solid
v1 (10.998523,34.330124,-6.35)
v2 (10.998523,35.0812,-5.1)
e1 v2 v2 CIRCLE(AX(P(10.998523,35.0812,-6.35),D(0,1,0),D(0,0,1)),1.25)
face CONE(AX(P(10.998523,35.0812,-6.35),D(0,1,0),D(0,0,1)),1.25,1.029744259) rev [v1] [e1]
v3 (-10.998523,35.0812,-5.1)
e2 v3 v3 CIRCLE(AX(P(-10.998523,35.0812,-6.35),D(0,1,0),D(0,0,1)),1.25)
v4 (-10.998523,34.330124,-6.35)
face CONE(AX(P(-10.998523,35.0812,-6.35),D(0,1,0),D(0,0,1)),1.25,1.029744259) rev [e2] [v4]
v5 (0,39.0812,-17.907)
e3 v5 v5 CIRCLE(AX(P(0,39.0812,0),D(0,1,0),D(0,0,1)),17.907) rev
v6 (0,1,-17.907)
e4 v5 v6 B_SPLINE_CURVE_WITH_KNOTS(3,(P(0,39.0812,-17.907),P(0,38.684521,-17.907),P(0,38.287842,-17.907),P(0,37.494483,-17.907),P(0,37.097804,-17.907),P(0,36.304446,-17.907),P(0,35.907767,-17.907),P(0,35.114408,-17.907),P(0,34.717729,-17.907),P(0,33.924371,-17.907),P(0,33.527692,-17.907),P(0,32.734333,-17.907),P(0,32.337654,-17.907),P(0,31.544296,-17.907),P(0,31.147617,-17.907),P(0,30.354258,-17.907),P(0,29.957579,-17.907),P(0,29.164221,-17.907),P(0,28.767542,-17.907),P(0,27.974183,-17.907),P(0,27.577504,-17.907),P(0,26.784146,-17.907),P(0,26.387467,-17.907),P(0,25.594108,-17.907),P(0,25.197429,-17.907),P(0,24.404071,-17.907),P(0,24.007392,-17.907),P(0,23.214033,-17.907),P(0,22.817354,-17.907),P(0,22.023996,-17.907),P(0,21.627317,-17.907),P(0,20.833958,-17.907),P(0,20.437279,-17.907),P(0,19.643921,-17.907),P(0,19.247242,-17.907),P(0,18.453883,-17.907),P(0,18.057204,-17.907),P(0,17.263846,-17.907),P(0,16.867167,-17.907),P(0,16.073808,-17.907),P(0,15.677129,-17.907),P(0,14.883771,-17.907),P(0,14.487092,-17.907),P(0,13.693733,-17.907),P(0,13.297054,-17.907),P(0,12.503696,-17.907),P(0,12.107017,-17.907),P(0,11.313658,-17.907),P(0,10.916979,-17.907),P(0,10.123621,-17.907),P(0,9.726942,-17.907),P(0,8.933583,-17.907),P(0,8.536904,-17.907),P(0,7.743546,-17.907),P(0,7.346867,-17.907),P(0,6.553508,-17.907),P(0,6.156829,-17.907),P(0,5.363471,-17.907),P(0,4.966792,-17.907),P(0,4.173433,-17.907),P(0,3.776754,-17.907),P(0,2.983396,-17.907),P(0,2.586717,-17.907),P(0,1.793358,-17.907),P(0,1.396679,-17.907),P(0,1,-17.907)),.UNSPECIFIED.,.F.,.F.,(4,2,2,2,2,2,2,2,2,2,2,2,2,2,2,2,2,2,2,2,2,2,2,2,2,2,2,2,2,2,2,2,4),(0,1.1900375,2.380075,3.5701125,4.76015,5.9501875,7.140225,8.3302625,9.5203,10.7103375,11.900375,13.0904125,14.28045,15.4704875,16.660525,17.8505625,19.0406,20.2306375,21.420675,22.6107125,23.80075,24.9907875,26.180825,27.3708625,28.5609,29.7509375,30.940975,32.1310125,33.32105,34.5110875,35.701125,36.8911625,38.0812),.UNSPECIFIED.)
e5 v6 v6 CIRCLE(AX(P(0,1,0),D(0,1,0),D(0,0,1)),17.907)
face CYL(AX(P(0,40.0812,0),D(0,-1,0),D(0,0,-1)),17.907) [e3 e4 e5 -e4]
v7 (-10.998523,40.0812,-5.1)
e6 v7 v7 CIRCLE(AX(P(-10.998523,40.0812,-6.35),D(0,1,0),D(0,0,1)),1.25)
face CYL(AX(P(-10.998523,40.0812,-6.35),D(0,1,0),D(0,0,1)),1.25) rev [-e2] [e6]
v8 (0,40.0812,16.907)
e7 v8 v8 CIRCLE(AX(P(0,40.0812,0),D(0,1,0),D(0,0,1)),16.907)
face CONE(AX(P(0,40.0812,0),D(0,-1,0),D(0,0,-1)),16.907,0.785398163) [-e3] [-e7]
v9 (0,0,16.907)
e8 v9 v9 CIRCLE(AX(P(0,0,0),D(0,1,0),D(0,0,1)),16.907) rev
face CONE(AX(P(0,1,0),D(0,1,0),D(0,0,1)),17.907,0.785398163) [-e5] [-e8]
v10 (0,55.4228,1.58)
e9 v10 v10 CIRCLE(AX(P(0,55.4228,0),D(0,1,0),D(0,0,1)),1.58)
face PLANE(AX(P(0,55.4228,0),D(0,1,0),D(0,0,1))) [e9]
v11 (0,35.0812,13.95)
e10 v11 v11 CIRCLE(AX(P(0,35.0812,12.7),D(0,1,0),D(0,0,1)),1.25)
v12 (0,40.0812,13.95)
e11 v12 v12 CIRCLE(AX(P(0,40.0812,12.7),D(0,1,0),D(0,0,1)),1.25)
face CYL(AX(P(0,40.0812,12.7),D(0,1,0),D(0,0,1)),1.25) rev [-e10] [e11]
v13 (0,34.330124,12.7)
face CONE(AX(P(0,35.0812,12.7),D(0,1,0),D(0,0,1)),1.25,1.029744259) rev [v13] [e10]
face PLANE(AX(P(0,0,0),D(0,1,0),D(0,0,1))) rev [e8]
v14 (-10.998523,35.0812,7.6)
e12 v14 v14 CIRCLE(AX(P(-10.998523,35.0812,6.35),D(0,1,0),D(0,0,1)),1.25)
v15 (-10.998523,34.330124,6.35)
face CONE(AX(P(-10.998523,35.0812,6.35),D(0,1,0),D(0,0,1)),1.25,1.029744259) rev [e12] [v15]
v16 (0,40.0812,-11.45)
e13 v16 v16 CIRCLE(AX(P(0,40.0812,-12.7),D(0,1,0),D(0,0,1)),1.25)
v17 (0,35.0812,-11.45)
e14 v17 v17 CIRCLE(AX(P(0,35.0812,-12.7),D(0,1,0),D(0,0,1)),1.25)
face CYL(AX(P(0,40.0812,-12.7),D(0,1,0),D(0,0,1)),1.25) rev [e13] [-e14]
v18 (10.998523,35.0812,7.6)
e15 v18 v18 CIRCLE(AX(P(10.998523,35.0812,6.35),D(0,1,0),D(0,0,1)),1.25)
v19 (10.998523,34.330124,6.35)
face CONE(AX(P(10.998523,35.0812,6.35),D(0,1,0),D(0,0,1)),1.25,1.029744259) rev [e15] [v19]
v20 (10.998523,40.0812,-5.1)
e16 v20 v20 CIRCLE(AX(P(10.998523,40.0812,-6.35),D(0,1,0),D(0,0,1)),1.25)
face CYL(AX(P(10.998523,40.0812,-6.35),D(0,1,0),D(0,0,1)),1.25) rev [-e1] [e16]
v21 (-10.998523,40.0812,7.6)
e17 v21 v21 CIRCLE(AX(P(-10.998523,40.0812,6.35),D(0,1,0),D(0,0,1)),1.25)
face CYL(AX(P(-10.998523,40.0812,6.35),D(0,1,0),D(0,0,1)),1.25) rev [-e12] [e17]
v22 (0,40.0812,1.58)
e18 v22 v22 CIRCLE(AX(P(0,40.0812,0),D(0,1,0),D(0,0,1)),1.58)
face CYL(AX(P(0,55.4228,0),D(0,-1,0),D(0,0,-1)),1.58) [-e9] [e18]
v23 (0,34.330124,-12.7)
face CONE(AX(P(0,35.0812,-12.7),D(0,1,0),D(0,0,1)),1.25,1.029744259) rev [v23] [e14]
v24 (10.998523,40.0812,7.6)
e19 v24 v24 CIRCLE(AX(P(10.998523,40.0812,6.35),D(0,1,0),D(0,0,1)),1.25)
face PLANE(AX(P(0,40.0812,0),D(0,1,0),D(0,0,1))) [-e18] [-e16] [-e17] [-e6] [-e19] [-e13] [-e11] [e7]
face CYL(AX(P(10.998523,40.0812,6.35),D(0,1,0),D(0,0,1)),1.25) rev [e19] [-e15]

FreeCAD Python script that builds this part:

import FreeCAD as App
import Part
import Sketcher
from FreeCAD import Vector


def edges_at(feature, points):
    """Names of the edges that pass closest to the given points."""
    edges = feature.Shape.Edges
    near = lambda p: min(range(len(edges)), key=lambda i: edges[i].distToShape(Part.Vertex(*p))[0])
    return sorted({f"Edge{near(p) + 1}" for p in points})

doc = App.newDocument("Part")
body = doc.addObject("PartDesign::Body", "Body")

# Sketch on XZ plane
sketch1 = body.newObject("Sketcher::SketchObject", "Sketch")
sketch1.AttachmentSupport = (doc.getObject("XZ_Plane"), [""])
sketch1.MapMode = "FlatFace"
sketch1.addGeometry(Part.Circle(Vector(0, 0, 0), Vector(0, 0, 1), 18), False)
sketch1.addConstraint([
    Sketcher.Constraint("Coincident", 0, 3, -1, 1),
    Sketcher.Constraint("Diameter", 0, 35.814),
])
pad1 = body.newObject("PartDesign::Pad", "Pad")
pad1.Profile = sketch1
pad1.Length = 40.0812
pad1.Reversed = True

# Sketch on XZ plane
sketch2 = body.newObject("Sketcher::SketchObject", "Sketch001")
sketch2.AttachmentSupport = (doc.getObject("XZ_Plane"), [""])
sketch2.MapMode = "FlatFace"
sketch2.AttachmentOffset = App.Placement(Vector(0, 0, -40.0812), App.Rotation())
sketch2.addGeometry([
    Part.Circle(Vector(0, -12.7, 0), Vector(0, 0, 1), 1.2),  # 0
    Part.Circle(Vector(11, -6.3, 0), Vector(0, 0, 1), 1.2),  # 1
    Part.Circle(Vector(11, 6.3, 0), Vector(0, 0, 1), 1.2),  # 2
    Part.Circle(Vector(0, 12.7, 0), Vector(0, 0, 1), 1.2),  # 3
    Part.Circle(Vector(-11, 6.3, 0), Vector(0, 0, 1), 1.2),  # 4
    Part.Circle(Vector(-11, -6.3, 0), Vector(0, 0, 1), 1.2),  # 5
], False)
sketch2.addConstraint([
    Sketcher.Constraint("Equal", 0, 1),
    Sketcher.Constraint("Equal", 1, 2),
    Sketcher.Constraint("Equal", 2, 3),
    Sketcher.Constraint("Equal", 3, 4),
    Sketcher.Constraint("Equal", 4, 5),
    Sketcher.Constraint("Symmetric", 0, 3, 3, 3, -1, 1),
    Sketcher.Constraint("Symmetric", 1, 3, 4, 3, -1, 1),
    Sketcher.Constraint("Symmetric", 2, 3, 5, 3, -1, 1),
    Sketcher.Constraint("Symmetric", 2, 3, 4, 3, -2),
    Sketcher.Constraint("PointOnObject", 0, 3, -2),
    Sketcher.Constraint("Diameter", 0, 2.5),
    Sketcher.Constraint("DistanceY", 0, 3, -1, 1, 12.7),
    Sketcher.Constraint("DistanceY", 1, 3, 2, 3, 12.7),
    Sketcher.Constraint("DistanceX", -1, 1, 1, 3, 10.998523),
])
doc.recompute()
hole = body.newObject("PartDesign::Hole", "Hole")
hole.Profile = sketch2
hole.ThreadType = "None"
hole.Diameter = 2.5
hole.DepthType = "Dimension"
hole.Depth = 5
hole.DrillPoint = "Angled"
hole.DrillPointAngle = 118
hole.Reversed = True

# Sketch on XZ plane
sketch3 = body.newObject("Sketcher::SketchObject", "Sketch002")
sketch3.AttachmentSupport = (doc.getObject("XZ_Plane"), [""])
sketch3.MapMode = "FlatFace"
sketch3.AttachmentOffset = App.Placement(Vector(0, 0, -40.0812), App.Rotation())
sketch3.addGeometry(Part.Circle(Vector(0, 0, 0), Vector(0, 0, 1), 1.6), False)
sketch3.addConstraint([
    Sketcher.Constraint("Coincident", 0, 3, -1, 1),
    Sketcher.Constraint("Diameter", 0, 3.16),
])
pad2 = body.newObject("PartDesign::Pad", "Pad001")
pad2.Profile = sketch3
pad2.Length = 15.3416
pad2.Reversed = True
doc.recompute()

chamfer = body.newObject("PartDesign::Chamfer", "Chamfer")
chamfer.Base = (pad2, edges_at(pad2, [(0, 0, 17.907), (0, 40.081, 17.907)]))
chamfer.Size = 1

doc.recompute()
